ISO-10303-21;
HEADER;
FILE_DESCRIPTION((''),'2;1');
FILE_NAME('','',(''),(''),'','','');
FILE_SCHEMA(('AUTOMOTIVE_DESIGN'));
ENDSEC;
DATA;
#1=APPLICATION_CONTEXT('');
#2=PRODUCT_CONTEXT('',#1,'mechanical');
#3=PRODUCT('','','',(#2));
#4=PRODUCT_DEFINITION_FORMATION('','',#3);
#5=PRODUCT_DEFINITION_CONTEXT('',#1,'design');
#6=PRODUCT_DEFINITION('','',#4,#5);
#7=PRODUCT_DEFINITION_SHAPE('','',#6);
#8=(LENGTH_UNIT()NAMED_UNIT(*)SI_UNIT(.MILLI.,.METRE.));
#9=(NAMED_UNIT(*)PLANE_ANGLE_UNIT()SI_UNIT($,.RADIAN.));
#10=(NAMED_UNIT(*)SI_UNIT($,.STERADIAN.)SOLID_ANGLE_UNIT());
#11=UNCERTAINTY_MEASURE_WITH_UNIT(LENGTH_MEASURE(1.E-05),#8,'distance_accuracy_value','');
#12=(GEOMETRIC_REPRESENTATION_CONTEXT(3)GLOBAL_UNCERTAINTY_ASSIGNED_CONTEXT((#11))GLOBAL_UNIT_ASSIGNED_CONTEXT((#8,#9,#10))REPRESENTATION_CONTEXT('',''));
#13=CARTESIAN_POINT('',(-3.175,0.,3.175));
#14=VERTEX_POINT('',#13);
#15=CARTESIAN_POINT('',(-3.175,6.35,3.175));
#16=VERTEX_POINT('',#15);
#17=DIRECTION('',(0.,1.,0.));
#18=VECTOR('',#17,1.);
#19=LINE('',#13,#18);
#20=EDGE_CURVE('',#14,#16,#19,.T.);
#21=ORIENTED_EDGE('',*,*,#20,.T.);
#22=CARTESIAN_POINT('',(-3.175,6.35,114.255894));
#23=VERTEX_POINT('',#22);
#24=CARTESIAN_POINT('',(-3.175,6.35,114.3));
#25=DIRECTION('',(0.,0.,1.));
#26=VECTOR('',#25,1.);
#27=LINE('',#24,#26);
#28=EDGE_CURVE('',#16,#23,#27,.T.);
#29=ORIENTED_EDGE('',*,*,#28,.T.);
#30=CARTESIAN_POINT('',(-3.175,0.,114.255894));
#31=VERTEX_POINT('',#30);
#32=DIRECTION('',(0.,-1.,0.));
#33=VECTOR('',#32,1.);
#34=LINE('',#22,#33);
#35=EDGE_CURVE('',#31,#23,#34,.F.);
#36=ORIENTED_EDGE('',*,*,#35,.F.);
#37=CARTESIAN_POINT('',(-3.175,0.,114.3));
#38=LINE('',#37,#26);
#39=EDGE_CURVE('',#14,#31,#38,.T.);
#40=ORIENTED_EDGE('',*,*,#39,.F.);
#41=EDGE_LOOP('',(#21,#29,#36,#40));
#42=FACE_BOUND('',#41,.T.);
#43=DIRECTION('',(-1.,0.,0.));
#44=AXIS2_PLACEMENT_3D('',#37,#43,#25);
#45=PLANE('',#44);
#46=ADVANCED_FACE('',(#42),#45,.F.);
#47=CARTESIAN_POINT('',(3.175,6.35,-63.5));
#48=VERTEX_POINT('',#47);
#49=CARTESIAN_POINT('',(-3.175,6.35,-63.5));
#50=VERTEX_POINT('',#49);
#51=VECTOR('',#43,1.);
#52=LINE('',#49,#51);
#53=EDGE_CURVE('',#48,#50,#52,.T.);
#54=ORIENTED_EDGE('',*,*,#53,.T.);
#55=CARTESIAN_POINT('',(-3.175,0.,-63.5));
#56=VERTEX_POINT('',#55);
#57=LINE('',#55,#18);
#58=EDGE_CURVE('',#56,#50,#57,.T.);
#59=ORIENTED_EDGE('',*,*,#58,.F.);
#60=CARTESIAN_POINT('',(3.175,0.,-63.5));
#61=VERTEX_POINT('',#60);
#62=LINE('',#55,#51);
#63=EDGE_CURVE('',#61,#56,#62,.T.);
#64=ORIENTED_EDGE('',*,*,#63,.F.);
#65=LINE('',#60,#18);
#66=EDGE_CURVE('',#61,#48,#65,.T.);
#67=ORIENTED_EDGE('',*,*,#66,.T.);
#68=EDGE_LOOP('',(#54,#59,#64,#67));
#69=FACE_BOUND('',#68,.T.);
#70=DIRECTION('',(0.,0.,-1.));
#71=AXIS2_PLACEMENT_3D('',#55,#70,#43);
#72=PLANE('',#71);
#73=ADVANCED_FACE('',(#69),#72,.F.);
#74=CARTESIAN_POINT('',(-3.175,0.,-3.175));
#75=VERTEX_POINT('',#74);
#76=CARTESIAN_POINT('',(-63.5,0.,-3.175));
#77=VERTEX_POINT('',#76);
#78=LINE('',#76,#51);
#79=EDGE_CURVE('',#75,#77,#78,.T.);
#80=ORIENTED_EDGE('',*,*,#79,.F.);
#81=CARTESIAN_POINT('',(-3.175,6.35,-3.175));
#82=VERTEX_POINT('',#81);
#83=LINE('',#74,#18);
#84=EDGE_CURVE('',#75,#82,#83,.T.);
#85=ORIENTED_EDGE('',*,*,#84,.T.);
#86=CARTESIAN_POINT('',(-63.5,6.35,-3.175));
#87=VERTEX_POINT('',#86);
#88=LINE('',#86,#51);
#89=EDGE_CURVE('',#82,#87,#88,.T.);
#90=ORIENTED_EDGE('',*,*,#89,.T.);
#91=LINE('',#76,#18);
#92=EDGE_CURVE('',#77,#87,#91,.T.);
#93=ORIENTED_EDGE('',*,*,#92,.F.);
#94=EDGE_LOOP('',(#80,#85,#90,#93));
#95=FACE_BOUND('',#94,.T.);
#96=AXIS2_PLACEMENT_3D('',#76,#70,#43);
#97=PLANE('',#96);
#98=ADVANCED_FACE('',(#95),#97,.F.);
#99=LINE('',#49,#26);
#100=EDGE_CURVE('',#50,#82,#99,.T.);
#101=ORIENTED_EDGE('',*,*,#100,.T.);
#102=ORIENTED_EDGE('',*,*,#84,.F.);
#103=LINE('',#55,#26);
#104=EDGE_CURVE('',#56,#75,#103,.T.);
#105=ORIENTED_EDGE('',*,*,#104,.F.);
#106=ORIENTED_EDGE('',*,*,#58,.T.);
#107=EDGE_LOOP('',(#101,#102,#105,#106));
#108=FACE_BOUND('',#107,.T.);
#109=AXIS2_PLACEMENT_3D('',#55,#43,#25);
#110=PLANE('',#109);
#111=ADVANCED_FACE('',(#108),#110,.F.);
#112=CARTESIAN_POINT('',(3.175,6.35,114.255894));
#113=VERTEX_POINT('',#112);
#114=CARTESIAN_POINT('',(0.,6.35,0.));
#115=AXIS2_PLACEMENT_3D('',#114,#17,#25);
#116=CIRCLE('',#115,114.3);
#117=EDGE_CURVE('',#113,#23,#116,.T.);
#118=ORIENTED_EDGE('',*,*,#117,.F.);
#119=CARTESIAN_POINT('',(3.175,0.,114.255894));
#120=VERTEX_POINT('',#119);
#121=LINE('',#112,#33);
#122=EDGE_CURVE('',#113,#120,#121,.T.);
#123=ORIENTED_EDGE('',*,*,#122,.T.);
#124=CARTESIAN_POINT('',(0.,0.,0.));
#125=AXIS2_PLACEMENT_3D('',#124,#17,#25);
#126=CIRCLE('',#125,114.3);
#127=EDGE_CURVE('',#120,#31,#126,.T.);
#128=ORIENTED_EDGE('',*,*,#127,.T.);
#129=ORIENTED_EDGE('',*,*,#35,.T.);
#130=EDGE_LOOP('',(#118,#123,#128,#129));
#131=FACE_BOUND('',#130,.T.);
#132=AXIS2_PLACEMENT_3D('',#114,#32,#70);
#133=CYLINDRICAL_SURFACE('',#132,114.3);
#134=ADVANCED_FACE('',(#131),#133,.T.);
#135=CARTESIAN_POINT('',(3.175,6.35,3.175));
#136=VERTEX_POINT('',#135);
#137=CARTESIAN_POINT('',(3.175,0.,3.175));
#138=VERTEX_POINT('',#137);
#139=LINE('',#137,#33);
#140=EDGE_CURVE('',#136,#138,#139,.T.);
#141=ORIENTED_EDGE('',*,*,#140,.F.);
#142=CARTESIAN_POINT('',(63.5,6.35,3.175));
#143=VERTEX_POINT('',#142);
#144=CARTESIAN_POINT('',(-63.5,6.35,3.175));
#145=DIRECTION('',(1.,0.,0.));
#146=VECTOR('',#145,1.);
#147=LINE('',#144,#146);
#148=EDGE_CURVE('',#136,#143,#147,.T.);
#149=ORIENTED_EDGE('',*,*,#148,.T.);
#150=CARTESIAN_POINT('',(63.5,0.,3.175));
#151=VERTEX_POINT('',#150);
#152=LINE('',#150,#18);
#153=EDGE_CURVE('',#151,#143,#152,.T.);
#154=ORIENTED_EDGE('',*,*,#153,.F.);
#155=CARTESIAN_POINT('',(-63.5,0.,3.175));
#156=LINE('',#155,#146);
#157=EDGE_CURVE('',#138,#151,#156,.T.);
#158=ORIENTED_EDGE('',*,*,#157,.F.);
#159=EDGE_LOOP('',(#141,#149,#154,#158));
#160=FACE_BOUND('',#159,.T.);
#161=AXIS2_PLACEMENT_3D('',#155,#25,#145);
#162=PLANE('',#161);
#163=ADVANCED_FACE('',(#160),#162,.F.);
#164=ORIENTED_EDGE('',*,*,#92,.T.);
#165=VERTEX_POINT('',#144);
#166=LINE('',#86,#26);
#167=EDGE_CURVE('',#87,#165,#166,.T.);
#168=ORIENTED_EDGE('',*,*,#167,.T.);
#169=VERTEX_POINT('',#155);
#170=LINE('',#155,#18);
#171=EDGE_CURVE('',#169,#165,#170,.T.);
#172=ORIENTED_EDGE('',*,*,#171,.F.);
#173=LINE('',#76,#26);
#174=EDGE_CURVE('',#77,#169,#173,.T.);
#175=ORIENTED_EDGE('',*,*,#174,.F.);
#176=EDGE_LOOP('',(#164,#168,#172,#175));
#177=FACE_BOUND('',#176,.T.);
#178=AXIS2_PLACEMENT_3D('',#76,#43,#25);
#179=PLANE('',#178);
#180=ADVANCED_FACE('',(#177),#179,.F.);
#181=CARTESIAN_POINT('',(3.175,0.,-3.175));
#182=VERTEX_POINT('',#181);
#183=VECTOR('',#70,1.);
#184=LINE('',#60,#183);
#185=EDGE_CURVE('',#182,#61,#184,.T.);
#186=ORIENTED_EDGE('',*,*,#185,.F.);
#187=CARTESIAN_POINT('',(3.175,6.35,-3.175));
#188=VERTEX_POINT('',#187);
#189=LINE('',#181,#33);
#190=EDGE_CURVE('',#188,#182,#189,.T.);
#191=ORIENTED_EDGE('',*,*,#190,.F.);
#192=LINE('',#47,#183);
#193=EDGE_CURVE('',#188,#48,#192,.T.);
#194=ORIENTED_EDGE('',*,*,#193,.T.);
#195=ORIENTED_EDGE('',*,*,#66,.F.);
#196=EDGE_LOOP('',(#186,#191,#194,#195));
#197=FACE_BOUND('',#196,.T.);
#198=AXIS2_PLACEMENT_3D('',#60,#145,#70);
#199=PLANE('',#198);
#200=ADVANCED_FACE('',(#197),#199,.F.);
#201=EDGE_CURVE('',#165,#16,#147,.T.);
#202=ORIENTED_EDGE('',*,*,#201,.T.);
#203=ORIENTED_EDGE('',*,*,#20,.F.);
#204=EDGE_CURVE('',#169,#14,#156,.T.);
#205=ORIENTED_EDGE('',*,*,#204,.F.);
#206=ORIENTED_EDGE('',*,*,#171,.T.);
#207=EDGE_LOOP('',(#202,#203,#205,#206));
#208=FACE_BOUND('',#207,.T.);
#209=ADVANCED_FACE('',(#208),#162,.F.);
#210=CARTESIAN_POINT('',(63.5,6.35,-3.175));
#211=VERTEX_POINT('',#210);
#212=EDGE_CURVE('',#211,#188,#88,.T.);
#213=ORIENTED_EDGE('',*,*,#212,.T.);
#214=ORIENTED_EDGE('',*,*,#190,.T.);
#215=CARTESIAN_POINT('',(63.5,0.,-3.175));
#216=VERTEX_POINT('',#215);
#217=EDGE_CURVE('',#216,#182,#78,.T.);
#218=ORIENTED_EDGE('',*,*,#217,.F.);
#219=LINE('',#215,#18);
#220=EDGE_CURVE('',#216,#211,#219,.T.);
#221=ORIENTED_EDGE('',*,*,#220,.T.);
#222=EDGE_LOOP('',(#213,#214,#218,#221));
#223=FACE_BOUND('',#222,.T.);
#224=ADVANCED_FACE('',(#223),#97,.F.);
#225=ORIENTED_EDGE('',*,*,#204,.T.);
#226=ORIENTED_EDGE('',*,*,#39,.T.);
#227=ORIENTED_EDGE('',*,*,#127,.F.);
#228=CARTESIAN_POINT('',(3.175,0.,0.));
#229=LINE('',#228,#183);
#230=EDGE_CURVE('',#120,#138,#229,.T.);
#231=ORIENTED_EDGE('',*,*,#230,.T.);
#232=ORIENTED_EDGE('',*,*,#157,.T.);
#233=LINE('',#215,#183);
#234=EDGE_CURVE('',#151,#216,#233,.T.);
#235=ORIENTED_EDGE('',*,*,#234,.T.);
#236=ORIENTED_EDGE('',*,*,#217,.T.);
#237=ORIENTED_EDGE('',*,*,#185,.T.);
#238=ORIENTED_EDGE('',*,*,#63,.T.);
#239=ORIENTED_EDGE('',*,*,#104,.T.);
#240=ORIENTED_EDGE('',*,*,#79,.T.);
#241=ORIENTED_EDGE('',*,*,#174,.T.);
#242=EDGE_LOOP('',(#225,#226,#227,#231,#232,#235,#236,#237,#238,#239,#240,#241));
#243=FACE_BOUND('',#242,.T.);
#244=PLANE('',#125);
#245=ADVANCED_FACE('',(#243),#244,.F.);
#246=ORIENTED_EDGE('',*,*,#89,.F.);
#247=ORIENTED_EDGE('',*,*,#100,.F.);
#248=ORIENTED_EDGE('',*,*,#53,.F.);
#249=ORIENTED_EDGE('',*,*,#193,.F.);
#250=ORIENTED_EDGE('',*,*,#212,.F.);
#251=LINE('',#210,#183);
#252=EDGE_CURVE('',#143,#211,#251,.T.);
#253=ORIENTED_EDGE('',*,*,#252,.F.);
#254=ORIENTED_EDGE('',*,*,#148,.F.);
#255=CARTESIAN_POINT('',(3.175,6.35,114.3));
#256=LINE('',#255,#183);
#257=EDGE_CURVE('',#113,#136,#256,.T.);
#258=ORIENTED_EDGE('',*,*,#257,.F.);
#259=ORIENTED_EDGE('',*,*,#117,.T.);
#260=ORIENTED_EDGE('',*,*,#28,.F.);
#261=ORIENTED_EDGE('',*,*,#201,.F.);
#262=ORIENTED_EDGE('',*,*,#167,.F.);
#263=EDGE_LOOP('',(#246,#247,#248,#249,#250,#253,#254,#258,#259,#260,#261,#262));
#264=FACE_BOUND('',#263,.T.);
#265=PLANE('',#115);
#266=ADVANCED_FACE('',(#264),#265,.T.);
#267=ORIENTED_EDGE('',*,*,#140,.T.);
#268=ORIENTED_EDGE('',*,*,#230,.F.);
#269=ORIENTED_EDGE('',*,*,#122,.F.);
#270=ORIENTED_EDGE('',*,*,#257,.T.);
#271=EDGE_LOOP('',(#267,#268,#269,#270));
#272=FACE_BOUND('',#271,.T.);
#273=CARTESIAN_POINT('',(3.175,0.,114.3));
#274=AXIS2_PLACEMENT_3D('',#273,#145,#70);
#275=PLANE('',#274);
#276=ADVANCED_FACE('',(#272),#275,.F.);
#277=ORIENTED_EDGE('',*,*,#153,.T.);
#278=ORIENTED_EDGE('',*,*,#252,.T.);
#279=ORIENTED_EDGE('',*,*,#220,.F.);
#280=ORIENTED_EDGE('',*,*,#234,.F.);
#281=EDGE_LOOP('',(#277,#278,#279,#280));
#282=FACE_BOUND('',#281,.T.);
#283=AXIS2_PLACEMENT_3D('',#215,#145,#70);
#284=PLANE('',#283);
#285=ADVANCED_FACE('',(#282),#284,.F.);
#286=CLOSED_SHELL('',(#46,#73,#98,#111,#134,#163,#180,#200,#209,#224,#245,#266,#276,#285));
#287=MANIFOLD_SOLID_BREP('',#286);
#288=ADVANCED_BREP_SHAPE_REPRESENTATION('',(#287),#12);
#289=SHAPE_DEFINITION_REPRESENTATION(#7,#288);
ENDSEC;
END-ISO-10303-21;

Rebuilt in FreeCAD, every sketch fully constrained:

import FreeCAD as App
import Part
import Sketcher

V = App.Vector
Q = App.Units.Quantity


def add_polygon(sketch, points):
    """Adds a closed chain of lines whose ends are joined by coincident constraints."""
    first, n = sketch.GeometryCount, len(points)
    for a, b in zip(points, points[1:] + points[:1]):
        sketch.addGeometry(Part.LineSegment(App.Vector(*a, 0), App.Vector(*b, 0)), False)
    for i in range(n):
        sketch.addConstraint(Sketcher.Constraint("Coincident", first + i, 2, first + (i + 1) % n, 1))

doc = App.newDocument("Part")
body = doc.addObject("PartDesign::Body", "Body")

sketch1 = body.newObject("Sketcher::SketchObject", "Sketch")
sketch1.AttachmentSupport = (doc.getObject("XZ_Plane"), [""])
sketch1.MapMode = "FlatFace"
sketch1.addGeometry(Part.Circle(V(0, 0, 0), V(0, 0, 1), 114), False)
sketch1.addConstraint(Sketcher.Constraint("Coincident", 0, 3, -1, 1))
sketch1.addConstraint(Sketcher.Constraint("Diameter", 0, Q("9 in")))
pad1 = body.newObject("PartDesign::Pad", "Pad")
pad1.Profile = sketch1
pad1.Length = Q("0.25 in")
pad1.Reversed = True

sketch2 = body.newObject("Sketcher::SketchObject", "Sketch001")
sketch2.AttachmentSupport = (doc.getObject("XZ_Plane"), [""])
sketch2.MapMode = "FlatFace"
sketch2.AttachmentOffset = App.Placement(V(0, 0, -0.25 * 25.4), App.Rotation())
add_polygon(sketch2, [(-3, 0), (-3, 114), (3, 114), (3, 0)])
sketch2.addConstraint(Sketcher.Constraint("Vertical", 0))
sketch2.addConstraint(Sketcher.Constraint("Horizontal", 1))
sketch2.addConstraint(Sketcher.Constraint("Vertical", 2))
sketch2.addConstraint(Sketcher.Constraint("Horizontal", 3))
sketch2.addConstraint(Sketcher.Constraint("Symmetric", 2, 2, 3, 2, -1, 1))
sketch2.addConstraint(Sketcher.Constraint("DistanceY", 0, 1, 0, 2, Q("4.5 in")))
sketch2.addConstraint(Sketcher.Constraint("DistanceX", 1, 1, 1, 2, Q("0.25 in")))
pocket1 = body.newObject("PartDesign::Pocket", "Pocket")
pocket1.Profile = sketch2
pocket1.Length = Q("0.25 in")
pocket1.Reversed = True

sketch3 = body.newObject("Sketcher::SketchObject", "Sketch002")
sketch3.AttachmentSupport = (doc.getObject("XZ_Plane"), [""])
sketch3.MapMode = "FlatFace"
sketch3.AttachmentOffset = App.Placement(V(0, 0, -0.25 * 25.4), App.Rotation())
add_polygon(sketch3, [(-64, -3), (-64, 3), (64, 3), (64, -3)])
sketch3.addConstraint(Sketcher.Constraint("Vertical", 0))
sketch3.addConstraint(Sketcher.Constraint("Horizontal", 1))
sketch3.addConstraint(Sketcher.Constraint("Vertical", 2))
sketch3.addConstraint(Sketcher.Constraint("Horizontal", 3))
sketch3.addConstraint(Sketcher.Constraint("Symmetric", 0, 2, 2, 2, -1, 1))
sketch3.addConstraint(Sketcher.Constraint("DistanceX", 1, 1, 1, 2, Q("5 in")))
sketch3.addConstraint(Sketcher.Constraint("DistanceY", 0, 1, 0, 2, Q("0.25 in")))
pocket2 = body.newObject("PartDesign::Pocket", "Pocket001")
pocket2.Profile = sketch3
pocket2.Type = "ThroughAll"
pocket2.Reversed = True

sketch4 = body.newObject("Sketcher::SketchObject", "Sketch003")
sketch4.AttachmentSupport = (doc.getObject("XZ_Plane"), [""])
sketch4.MapMode = "FlatFace"
sketch4.AttachmentOffset = App.Placement(V(0, 0, -0.25 * 25.4), App.Rotation())
add_polygon(sketch4, [(-3, -64), (-3, 0), (3, 0), (3, -64)])
sketch4.addConstraint(Sketcher.Constraint("Vertical", 0))
sketch4.addConstraint(Sketcher.Constraint("Horizontal", 1))
sketch4.addConstraint(Sketcher.Constraint("Vertical", 2))
sketch4.addConstraint(Sketcher.Constraint("Horizontal", 3))
sketch4.addConstraint(Sketcher.Constraint("Symmetric", 0, 2, 1, 2, -1, 1))
sketch4.addConstraint(Sketcher.Constraint("DistanceY", 0, 1, 0, 2, Q("2.5 in")))
sketch4.addConstraint(Sketcher.Constraint("DistanceX", 1, 1, 1, 2, Q("0.25 in")))
pocket3 = body.newObject("PartDesign::Pocket", "Pocket002")
pocket3.Profile = sketch4
pocket3.Type = "ThroughAll"
pocket3.Reversed = True

doc.recompute()
